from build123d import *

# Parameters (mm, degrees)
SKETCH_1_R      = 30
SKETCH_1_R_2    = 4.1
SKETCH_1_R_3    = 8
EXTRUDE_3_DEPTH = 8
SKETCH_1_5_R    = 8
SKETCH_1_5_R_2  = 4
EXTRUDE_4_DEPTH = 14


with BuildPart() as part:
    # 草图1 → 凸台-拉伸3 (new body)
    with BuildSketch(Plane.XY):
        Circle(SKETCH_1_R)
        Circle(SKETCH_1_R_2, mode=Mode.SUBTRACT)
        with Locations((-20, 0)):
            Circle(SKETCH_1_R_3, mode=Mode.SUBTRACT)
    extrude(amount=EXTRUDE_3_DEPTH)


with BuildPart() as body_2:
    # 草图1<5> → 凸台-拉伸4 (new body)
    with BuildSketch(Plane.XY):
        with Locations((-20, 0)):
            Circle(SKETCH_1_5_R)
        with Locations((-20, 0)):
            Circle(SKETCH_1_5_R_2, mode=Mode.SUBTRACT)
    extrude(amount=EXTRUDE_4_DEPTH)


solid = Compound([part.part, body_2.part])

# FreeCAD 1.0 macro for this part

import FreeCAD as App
import Part
import Sketcher

V = App.Vector
Q = App.Units.Quantity

doc = App.newDocument("Part")
body = doc.addObject("PartDesign::Body", "Body")

sketch1 = body.newObject("Sketcher::SketchObject", "Sketch")
sketch1.AttachmentSupport = (doc.getObject("XY_Plane"), [""])
sketch1.MapMode = "FlatFace"
sketch1.addGeometry([
    Part.Circle(V(0, 0, 0), V(0, 0, 1), 30),
    Part.Circle(V(-20, 0, 0), V(0, 0, 1), 8),
    Part.Circle(V(0, 0, 0), V(0, 0, 1), 4.1),
], False)
sketch1.addConstraint([
    Sketcher.Constraint("Coincident", 0, 3, -1, 1),
    Sketcher.Constraint("Coincident", 2, 3, -1, 1),
    Sketcher.Constraint("PointOnObject", 1, 3, -1),
    Sketcher.Constraint("Diameter", 0, Q("60 mm")),
    Sketcher.Constraint("Diameter", 1, Q("16 mm")),
    Sketcher.Constraint("Diameter", 2, Q("8.2 mm")),
    Sketcher.Constraint("DistanceX", 1, 3, -1, 1, Q("20 mm")),
])
pad1 = body.newObject("PartDesign::Pad", "Pad")
pad1.Profile = sketch1
pad1.Length = 8
body2 = doc.addObject("PartDesign::Body", "Body001")

sketch2 = body2.newObject("Sketcher::SketchObject", "Sketch001")
sketch2.AttachmentSupport = (doc.getObject("XY_Plane001"), [""])
sketch2.MapMode = "FlatFace"
sketch2.addGeometry([
    Part.Circle(V(-20, 0, 0), V(0, 0, 1), 8),
    Part.Circle(V(-20, 0, 0), V(0, 0, 1), 4),
], False)
sketch2.addConstraint([
    Sketcher.Constraint("Coincident", 1, 3, 0, 3),
    Sketcher.Constraint("PointOnObject", 0, 3, -1),
    Sketcher.Constraint("Diameter", 0, Q("16 mm")),
    Sketcher.Constraint("Diameter", 1, Q("8 mm")),
    Sketcher.Constraint("DistanceX", 0, 3, -1, 1, Q("20 mm")),
])
pad2 = body2.newObject("PartDesign::Pad", "Pad001")
pad2.Profile = sketch2
pad2.Length = 14

doc.recompute()
